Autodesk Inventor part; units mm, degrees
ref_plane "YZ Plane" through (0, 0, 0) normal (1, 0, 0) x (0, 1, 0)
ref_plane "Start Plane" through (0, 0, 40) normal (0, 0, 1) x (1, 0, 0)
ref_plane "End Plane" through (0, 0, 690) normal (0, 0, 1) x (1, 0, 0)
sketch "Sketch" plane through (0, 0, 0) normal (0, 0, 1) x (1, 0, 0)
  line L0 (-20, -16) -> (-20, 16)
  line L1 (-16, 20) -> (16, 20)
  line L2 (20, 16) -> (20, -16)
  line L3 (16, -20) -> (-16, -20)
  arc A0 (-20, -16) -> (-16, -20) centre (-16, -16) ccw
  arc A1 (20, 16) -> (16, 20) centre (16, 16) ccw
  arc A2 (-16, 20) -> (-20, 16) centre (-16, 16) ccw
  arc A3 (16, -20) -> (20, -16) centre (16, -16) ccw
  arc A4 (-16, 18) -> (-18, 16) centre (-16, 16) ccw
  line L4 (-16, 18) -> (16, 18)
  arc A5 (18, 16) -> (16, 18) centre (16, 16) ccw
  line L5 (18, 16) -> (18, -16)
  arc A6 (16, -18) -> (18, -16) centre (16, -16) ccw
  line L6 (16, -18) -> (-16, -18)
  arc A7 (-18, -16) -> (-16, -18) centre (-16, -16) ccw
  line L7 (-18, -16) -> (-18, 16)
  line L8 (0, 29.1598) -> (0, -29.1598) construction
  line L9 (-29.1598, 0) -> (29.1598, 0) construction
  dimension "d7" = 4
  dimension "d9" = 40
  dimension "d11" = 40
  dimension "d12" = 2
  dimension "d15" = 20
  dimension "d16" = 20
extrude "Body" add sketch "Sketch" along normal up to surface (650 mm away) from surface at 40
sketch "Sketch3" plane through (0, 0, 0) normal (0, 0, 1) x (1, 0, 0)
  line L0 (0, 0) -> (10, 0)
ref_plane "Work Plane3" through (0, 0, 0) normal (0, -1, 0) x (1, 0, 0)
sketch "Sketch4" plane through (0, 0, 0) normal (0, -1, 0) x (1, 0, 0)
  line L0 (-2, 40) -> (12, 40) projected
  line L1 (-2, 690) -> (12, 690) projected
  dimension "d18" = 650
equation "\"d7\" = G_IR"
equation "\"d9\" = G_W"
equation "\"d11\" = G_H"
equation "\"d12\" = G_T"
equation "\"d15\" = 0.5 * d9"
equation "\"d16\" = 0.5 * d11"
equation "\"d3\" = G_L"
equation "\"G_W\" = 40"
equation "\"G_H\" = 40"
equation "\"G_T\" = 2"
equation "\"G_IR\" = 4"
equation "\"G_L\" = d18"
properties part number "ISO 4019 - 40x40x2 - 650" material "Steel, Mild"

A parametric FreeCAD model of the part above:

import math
import FreeCAD as App
import Part
import Sketcher
Q = App.Units.Quantity

doc = App.newDocument("Part")
body = doc.addObject("PartDesign::Body", "Body")

sketch1 = doc.addObject("Sketcher::SketchObject", "Sketch")
body.addObject(sketch1)
sketch1.AttachmentSupport = (doc.XY_Plane, [""])
sketch1.MapMode = "FlatFace"
sketch1.AttachmentOffset = App.Placement(App.Vector(0, 0, 40), App.Rotation())
sketch1.addGeometry(Part.LineSegment(App.Vector(-20, 16, 0), App.Vector(-20, -16, 0)), False)
sketch1.addGeometry(Part.ArcOfCircle(Part.Circle(App.Vector(-16, -16, 0), App.Vector(0, 0, 1), 4), math.radians(180), math.radians(270)), False)
sketch1.addGeometry(Part.LineSegment(App.Vector(-16, -20, 0), App.Vector(16, -20, 0)), False)
sketch1.addGeometry(Part.ArcOfCircle(Part.Circle(App.Vector(16, -16, 0), App.Vector(0, 0, 1), 4), math.radians(-90), math.radians(0)), False)
sketch1.addGeometry(Part.LineSegment(App.Vector(20, -16, 0), App.Vector(20, 16, 0)), False)
sketch1.addGeometry(Part.ArcOfCircle(Part.Circle(App.Vector(16, 16, 0), App.Vector(0, 0, 1), 4), math.radians(0), math.radians(90)), False)
sketch1.addGeometry(Part.LineSegment(App.Vector(16, 20, 0), App.Vector(-16, 20, 0)), False)
sketch1.addGeometry(Part.ArcOfCircle(Part.Circle(App.Vector(-16, 16, 0), App.Vector(0, 0, 1), 4), math.radians(90), math.radians(180)), False)
sketch1.addGeometry(Part.ArcOfCircle(Part.Circle(App.Vector(-16, 16, 0), App.Vector(0, 0, 1), 2), math.radians(90), math.radians(180)), False)
sketch1.addGeometry(Part.LineSegment(App.Vector(-16, 18, 0), App.Vector(16, 18, 0)), False)
sketch1.addGeometry(Part.ArcOfCircle(Part.Circle(App.Vector(16, 16, 0), App.Vector(0, 0, 1), 2), math.radians(0), math.radians(90)), False)
sketch1.addGeometry(Part.LineSegment(App.Vector(18, 16, 0), App.Vector(18, -16, 0)), False)
sketch1.addGeometry(Part.ArcOfCircle(Part.Circle(App.Vector(16, -16, 0), App.Vector(0, 0, 1), 2), math.radians(-90), math.radians(0)), False)
sketch1.addGeometry(Part.LineSegment(App.Vector(16, -18, 0), App.Vector(-16, -18, 0)), False)
sketch1.addGeometry(Part.ArcOfCircle(Part.Circle(App.Vector(-16, -16, 0), App.Vector(0, 0, 1), 2), math.radians(180), math.radians(270)), False)
sketch1.addGeometry(Part.LineSegment(App.Vector(-18, -16, 0), App.Vector(-18, 16, 0)), False)
sketch1.addConstraint(Sketcher.Constraint("Tangent", 0, 2, 1, 1))
sketch1.addConstraint(Sketcher.Constraint("Tangent", 1, 2, 2, 1))
sketch1.addConstraint(Sketcher.Constraint("Tangent", 2, 2, 3, 1))
sketch1.addConstraint(Sketcher.Constraint("Tangent", 3, 2, 4, 1))
sketch1.addConstraint(Sketcher.Constraint("Tangent", 4, 2, 5, 1))
sketch1.addConstraint(Sketcher.Constraint("Tangent", 5, 2, 6, 1))
sketch1.addConstraint(Sketcher.Constraint("Tangent", 6, 2, 7, 1))
sketch1.addConstraint(Sketcher.Constraint("Tangent", 7, 2, 0, 1))
sketch1.addConstraint(Sketcher.Constraint("Tangent", 8, 1, 9, 1))
sketch1.addConstraint(Sketcher.Constraint("Tangent", 9, 2, 10, 2))
sketch1.addConstraint(Sketcher.Constraint("Tangent", 10, 1, 11, 1))
sketch1.addConstraint(Sketcher.Constraint("Tangent", 11, 2, 12, 2))
sketch1.addConstraint(Sketcher.Constraint("Tangent", 12, 1, 13, 1))
sketch1.addConstraint(Sketcher.Constraint("Tangent", 13, 2, 14, 2))
sketch1.addConstraint(Sketcher.Constraint("Tangent", 14, 1, 15, 1))
sketch1.addConstraint(Sketcher.Constraint("Tangent", 15, 2, 8, 2))
sketch1.addConstraint(Sketcher.Constraint("Vertical", 0))
sketch1.addConstraint(Sketcher.Constraint("Horizontal", 2))
sketch1.addConstraint(Sketcher.Constraint("Vertical", 4))
sketch1.addConstraint(Sketcher.Constraint("Horizontal", 6))
sketch1.addConstraint(Sketcher.Constraint("Horizontal", 9))
sketch1.addConstraint(Sketcher.Constraint("Vertical", 11))
sketch1.addConstraint(Sketcher.Constraint("Horizontal", 13))
sketch1.addConstraint(Sketcher.Constraint("Vertical", 15))
sketch1.addConstraint(Sketcher.Constraint("Coincident", 8, 3, 7, 3))
sketch1.addConstraint(Sketcher.Constraint("Coincident", 10, 3, 5, 3))
sketch1.addConstraint(Sketcher.Constraint("Coincident", 12, 3, 3, 3))
sketch1.addConstraint(Sketcher.Constraint("Equal", 1, 3))
sketch1.addConstraint(Sketcher.Constraint("Equal", 3, 5))
sketch1.addConstraint(Sketcher.Constraint("Equal", 5, 7))
sketch1.addConstraint(Sketcher.Constraint("Equal", 12, 14))
sketch1.addConstraint(Sketcher.Constraint("Symmetric", 1, 3, 5, 3, -1, 1))
sketch1.addConstraint(Sketcher.Constraint("Equal", 13, 0))
sketch1.addConstraint(Sketcher.Constraint("Radius", 1, Q("4 mm")))
sketch1.addConstraint(Sketcher.Constraint("Radius", 8, Q("2 mm")))
sketch1.addConstraint(Sketcher.Constraint("DistanceX", 0, 2, -1, 1, Q("20 mm")))
pad1 = doc.addObject("PartDesign::Pad", "Pad")
body.addObject(pad1)
pad1.Profile = sketch1
pad1.Length = 650

doc.recompute()
